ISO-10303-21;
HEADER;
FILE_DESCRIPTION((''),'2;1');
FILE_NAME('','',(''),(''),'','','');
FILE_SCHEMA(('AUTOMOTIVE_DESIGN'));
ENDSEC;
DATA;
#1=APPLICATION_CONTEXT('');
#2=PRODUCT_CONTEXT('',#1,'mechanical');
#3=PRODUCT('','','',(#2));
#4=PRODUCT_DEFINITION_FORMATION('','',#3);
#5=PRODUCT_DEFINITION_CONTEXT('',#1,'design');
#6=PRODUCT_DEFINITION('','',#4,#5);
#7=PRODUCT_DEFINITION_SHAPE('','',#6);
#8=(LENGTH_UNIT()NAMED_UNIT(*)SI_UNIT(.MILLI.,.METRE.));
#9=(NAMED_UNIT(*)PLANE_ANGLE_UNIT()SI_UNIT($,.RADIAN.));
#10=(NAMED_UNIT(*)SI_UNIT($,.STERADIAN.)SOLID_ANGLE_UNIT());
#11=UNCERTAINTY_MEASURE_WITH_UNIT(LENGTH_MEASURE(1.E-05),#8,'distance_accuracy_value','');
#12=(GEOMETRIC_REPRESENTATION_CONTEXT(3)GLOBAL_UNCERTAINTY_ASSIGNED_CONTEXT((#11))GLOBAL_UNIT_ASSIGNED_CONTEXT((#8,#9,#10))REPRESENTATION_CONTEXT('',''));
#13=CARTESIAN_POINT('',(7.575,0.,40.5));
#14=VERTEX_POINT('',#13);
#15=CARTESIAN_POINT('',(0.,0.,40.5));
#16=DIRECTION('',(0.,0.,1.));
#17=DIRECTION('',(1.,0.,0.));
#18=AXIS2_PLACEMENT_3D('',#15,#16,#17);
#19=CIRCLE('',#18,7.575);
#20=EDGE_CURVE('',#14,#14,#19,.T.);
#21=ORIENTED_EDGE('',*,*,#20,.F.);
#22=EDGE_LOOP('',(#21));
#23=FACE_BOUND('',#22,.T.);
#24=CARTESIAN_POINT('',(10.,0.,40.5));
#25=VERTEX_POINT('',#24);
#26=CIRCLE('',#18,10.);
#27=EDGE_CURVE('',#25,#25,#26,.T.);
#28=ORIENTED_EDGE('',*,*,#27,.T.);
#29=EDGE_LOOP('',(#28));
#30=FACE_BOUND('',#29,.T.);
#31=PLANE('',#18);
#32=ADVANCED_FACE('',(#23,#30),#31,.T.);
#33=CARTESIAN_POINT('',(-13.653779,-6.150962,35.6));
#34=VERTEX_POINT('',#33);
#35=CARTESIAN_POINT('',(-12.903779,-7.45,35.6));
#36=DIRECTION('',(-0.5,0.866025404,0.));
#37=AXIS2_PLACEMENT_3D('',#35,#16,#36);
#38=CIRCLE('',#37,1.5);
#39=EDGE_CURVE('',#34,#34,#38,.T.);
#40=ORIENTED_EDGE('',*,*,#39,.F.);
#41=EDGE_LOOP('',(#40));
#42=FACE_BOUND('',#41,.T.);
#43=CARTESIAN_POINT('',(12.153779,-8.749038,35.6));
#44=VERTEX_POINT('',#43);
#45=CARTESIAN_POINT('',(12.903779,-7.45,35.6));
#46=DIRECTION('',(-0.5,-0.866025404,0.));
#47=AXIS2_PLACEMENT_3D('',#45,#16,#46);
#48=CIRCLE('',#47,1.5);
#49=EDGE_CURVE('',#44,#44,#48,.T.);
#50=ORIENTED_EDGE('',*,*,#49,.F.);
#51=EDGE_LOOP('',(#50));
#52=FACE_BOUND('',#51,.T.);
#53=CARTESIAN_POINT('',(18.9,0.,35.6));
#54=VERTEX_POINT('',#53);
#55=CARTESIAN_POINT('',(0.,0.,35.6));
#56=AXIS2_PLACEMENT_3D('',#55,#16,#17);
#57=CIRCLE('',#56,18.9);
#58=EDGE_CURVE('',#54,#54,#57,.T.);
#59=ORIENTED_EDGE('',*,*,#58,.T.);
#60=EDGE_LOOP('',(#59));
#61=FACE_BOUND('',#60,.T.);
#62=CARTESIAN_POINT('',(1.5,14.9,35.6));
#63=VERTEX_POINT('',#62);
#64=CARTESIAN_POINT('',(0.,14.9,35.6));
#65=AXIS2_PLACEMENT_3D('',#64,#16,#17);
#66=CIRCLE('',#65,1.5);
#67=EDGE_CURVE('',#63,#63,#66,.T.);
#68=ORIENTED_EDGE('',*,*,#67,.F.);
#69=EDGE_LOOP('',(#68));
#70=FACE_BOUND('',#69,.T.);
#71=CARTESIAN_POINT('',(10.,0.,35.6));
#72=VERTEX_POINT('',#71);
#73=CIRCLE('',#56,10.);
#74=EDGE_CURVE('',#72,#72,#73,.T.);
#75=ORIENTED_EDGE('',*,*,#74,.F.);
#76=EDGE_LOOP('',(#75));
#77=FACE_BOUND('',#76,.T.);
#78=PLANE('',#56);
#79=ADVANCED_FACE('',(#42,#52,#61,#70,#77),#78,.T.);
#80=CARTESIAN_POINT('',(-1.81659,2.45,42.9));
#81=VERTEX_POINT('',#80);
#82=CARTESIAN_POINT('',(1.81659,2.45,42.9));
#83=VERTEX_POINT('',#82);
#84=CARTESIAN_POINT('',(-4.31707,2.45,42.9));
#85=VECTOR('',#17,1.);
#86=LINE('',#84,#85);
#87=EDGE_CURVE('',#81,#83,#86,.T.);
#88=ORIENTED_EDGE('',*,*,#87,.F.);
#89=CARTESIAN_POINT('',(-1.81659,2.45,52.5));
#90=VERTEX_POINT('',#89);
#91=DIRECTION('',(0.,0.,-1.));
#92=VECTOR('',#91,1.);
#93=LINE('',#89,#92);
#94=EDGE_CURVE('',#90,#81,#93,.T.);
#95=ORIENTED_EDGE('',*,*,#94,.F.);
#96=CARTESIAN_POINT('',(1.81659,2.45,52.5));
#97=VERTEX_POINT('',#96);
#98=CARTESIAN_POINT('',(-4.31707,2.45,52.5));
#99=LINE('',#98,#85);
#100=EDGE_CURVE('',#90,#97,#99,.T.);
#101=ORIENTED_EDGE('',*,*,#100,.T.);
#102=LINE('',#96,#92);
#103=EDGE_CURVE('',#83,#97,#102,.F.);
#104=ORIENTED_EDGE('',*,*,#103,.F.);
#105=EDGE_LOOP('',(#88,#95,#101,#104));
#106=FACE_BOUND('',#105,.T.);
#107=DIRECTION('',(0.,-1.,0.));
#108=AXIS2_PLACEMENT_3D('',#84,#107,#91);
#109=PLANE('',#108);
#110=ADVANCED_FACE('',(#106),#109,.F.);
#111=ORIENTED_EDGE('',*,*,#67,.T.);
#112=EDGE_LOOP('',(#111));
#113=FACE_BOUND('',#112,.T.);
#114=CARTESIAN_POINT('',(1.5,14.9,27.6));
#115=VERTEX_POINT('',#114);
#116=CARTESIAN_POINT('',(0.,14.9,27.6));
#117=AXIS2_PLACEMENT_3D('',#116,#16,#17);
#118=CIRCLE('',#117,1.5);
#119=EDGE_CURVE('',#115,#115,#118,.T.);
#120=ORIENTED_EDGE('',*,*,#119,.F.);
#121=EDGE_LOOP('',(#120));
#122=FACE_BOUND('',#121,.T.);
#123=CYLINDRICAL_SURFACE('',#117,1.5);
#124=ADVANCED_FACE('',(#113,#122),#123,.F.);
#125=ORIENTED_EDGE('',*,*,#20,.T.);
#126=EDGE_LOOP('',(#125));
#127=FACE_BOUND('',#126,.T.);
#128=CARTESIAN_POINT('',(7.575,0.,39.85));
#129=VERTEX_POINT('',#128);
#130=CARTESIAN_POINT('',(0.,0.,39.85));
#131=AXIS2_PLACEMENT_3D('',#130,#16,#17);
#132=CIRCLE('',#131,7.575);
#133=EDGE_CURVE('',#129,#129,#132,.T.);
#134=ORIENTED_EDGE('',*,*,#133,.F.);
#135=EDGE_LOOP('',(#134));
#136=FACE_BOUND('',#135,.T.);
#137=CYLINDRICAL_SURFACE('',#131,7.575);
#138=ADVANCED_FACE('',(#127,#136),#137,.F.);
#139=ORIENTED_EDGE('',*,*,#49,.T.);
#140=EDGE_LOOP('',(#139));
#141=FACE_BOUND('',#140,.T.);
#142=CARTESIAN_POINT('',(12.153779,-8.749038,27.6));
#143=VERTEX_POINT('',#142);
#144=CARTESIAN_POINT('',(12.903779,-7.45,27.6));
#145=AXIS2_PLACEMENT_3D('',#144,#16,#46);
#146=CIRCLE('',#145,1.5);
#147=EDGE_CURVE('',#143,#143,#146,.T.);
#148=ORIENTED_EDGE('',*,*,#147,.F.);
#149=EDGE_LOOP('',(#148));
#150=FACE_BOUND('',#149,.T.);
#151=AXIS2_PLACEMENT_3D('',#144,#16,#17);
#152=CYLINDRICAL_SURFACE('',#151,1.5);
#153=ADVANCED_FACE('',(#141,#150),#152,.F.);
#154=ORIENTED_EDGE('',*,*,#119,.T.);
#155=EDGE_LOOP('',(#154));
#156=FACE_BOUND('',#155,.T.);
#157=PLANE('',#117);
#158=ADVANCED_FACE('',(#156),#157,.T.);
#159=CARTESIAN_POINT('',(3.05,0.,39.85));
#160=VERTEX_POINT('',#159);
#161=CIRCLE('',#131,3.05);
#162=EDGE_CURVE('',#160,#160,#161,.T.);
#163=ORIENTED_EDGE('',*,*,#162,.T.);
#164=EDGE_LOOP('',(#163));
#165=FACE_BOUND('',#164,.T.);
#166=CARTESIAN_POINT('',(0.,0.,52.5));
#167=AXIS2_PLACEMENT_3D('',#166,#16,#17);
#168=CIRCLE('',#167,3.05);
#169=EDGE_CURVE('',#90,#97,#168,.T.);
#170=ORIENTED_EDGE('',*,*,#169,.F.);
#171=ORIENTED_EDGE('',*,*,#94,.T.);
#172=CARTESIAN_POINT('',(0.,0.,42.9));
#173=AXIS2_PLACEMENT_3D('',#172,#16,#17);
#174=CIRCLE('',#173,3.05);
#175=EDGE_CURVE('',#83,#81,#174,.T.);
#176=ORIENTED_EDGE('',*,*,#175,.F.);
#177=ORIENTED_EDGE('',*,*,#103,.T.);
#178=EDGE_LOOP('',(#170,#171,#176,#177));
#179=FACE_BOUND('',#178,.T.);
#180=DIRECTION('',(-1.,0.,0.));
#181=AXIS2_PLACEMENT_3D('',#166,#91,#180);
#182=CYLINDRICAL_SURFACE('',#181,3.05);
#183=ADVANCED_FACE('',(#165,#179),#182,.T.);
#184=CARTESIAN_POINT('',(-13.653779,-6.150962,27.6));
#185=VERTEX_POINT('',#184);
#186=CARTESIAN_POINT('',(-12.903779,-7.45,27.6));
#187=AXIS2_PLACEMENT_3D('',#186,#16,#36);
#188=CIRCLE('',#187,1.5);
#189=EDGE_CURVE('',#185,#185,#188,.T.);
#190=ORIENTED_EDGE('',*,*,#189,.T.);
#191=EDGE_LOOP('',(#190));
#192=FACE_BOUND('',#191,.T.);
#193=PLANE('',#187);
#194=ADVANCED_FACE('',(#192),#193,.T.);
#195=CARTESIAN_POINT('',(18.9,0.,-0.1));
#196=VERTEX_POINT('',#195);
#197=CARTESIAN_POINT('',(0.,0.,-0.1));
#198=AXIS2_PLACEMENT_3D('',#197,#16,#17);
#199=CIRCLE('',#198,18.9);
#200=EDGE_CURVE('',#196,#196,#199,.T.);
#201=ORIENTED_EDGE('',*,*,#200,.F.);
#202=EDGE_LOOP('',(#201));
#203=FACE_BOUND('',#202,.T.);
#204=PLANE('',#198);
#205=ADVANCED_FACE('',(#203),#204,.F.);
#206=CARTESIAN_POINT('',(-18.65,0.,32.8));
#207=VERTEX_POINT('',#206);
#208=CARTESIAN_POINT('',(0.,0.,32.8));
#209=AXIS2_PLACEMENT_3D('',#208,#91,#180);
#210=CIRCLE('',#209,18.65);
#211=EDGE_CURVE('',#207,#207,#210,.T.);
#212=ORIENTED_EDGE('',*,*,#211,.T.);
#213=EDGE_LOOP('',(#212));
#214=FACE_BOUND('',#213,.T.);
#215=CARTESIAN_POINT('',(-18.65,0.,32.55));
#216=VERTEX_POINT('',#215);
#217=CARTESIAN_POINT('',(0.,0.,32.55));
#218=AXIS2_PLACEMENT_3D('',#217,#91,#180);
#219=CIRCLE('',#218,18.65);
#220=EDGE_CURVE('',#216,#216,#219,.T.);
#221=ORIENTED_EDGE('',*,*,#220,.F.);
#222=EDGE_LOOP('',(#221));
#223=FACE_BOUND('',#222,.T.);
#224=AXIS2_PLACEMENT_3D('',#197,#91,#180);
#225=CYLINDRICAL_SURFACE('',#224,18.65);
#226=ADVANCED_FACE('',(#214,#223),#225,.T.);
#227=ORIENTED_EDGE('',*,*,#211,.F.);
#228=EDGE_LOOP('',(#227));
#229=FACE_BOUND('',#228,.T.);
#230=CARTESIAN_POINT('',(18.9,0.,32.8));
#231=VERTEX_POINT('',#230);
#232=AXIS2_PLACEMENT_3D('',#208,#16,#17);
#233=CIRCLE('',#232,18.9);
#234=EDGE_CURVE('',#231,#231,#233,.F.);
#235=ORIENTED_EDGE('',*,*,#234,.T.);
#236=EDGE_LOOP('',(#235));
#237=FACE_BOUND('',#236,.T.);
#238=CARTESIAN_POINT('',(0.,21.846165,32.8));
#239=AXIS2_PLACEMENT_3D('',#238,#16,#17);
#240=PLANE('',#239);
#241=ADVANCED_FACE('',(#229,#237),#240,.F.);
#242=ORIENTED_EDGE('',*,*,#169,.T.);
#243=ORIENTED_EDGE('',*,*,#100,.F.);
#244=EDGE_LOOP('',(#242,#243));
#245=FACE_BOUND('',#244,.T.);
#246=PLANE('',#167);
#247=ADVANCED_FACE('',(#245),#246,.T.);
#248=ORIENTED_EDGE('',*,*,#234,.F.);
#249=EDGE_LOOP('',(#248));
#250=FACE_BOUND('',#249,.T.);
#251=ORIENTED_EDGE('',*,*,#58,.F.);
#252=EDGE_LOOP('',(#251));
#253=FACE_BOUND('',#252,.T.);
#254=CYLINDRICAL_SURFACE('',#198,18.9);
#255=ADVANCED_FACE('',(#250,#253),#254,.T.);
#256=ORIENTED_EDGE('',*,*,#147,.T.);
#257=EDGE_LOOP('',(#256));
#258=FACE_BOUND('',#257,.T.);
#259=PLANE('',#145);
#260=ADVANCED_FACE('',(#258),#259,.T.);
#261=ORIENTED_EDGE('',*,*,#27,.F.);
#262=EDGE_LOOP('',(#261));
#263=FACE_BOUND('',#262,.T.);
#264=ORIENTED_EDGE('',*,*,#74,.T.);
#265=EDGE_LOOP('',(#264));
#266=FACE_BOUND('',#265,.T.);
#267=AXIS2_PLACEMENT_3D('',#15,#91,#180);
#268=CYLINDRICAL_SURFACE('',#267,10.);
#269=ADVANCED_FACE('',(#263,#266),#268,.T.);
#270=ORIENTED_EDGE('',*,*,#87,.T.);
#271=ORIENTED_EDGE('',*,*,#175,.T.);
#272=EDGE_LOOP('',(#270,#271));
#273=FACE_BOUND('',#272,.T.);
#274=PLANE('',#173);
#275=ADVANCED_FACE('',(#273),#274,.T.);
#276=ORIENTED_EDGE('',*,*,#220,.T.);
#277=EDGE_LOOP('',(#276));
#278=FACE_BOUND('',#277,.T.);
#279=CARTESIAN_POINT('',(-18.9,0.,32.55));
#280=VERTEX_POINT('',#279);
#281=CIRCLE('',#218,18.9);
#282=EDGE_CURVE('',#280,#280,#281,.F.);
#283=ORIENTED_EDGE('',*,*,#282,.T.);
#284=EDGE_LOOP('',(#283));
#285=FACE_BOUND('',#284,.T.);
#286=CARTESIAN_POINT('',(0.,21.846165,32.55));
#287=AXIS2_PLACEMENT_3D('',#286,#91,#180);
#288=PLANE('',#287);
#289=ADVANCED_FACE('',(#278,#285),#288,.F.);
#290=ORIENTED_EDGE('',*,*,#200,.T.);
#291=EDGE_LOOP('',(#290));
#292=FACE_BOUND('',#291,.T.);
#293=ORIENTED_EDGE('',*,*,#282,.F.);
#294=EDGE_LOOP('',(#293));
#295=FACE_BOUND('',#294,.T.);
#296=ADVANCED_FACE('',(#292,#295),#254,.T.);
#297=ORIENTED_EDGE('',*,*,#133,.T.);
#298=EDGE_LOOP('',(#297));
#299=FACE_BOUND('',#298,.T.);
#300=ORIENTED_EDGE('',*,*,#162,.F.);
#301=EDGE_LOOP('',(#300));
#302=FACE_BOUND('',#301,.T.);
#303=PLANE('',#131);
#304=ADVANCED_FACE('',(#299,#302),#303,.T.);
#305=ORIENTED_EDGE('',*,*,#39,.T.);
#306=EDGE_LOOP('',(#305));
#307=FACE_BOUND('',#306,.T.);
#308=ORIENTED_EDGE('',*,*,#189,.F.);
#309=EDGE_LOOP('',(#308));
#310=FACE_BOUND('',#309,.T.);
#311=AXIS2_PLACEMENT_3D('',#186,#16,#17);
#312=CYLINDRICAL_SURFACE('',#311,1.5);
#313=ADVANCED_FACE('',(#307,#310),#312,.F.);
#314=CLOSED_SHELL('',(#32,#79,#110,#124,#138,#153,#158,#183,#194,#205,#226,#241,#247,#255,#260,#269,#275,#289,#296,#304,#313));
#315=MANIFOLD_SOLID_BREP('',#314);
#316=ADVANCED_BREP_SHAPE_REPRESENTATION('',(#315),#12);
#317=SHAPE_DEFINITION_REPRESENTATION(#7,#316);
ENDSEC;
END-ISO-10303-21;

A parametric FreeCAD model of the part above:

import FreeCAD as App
import Part
import Sketcher
Q = App.Units.Quantity


def add_polygon(sketch, points):
    """Adds a closed chain of lines whose ends are joined by coincident constraints."""
    first, n = sketch.GeometryCount, len(points)
    for a, b in zip(points, points[1:] + points[:1]):
        sketch.addGeometry(Part.LineSegment(App.Vector(*a, 0), App.Vector(*b, 0)), False)
    for i in range(n):
        sketch.addConstraint(Sketcher.Constraint("Coincident", first + i, 2, first + (i + 1) % n, 1))

doc = App.newDocument("Part")
body = doc.addObject("PartDesign::Body", "Body")

sketch1 = doc.addObject("Sketcher::SketchObject", "Sketch")
body.addObject(sketch1)
sketch1.AttachmentSupport = (doc.XY_Plane, [""])
sketch1.MapMode = "FlatFace"
sketch1.addGeometry(Part.Circle(App.Vector(0, 0, 0), App.Vector(0, 0, 1), 19), False)
sketch1.addConstraint([
    Sketcher.Constraint("Coincident", 0, 3, -1, 1),
    Sketcher.Constraint("Diameter", 0, Q("37.8 mm")),
])
pad1 = doc.addObject("PartDesign::Pad", "Pad")
body.addObject(pad1)
pad1.Profile = sketch1
pad1.Type = "TwoLengths"
pad1.Length = 35.6
pad1.Length2 = 0.1

sketch2 = doc.addObject("Sketcher::SketchObject", "Sketch001")
body.addObject(sketch2)
sketch2.AttachmentSupport = (doc.XY_Plane, [""])
sketch2.MapMode = "FlatFace"
sketch2.AttachmentOffset = App.Placement(App.Vector(0, 0, 35.6), App.Rotation())
sketch2.addGeometry(Part.Circle(App.Vector(0, 0, 0), App.Vector(0, 0, 1), 10), False)
sketch2.addConstraint([
    Sketcher.Constraint("Coincident", 0, 3, -1, 1),
    Sketcher.Constraint("Diameter", 0, Q("20 mm")),
])
pad2 = doc.addObject("PartDesign::Pad", "Pad001")
body.addObject(pad2)
pad2.Profile = sketch2
pad2.Length = 4.9

sketch3 = doc.addObject("Sketcher::SketchObject", "Sketch002")
body.addObject(sketch3)
sketch3.AttachmentSupport = (doc.XY_Plane, [""])
sketch3.MapMode = "FlatFace"
sketch3.AttachmentOffset = App.Placement(App.Vector(0, 0, 40.5), App.Rotation())
sketch3.addGeometry(Part.Circle(App.Vector(0, 0, 0), App.Vector(0, 0, 1), 3), False)
sketch3.addConstraint([
    Sketcher.Constraint("Coincident", 0, 3, -1, 1),
    Sketcher.Constraint("Diameter", 0, Q("6.1 mm")),
])
pad3 = doc.addObject("PartDesign::Pad", "Pad002")
body.addObject(pad3)
pad3.Profile = sketch3
pad3.Length = 12

sketch4 = doc.addObject("Sketcher::SketchObject", "Sketch003")
body.addObject(sketch4)
sketch4.AttachmentSupport = (doc.XY_Plane, [""])
sketch4.MapMode = "FlatFace"
sketch4.AttachmentOffset = App.Placement(App.Vector(0, 0, 35.6), App.Rotation())
sketch4.addGeometry(Part.Circle(App.Vector(0, 14.9, 0), App.Vector(0, 0, 1), 1.5), False)
sketch4.addConstraint([
    Sketcher.Constraint("PointOnObject", 0, 3, -2),
    Sketcher.Constraint("Diameter", 0, Q("3 mm")),
    Sketcher.Constraint("DistanceY", -1, 1, 0, 3, Q("14.9 mm")),
])
pocket1 = doc.addObject("PartDesign::Pocket", "Pocket")
body.addObject(pocket1)
pocket1.Profile = sketch4
pocket1.Length = 8

sketch5 = doc.addObject("Sketcher::SketchObject", "Sketch004")
body.addObject(sketch5)
sketch5.AttachmentSupport = (doc.XY_Plane, [""])
sketch5.MapMode = "FlatFace"
sketch5.AttachmentOffset = App.Placement(App.Vector(0, 0, 40.5), App.Rotation())
sketch5.addGeometry([
    Part.Circle(App.Vector(0, 0, 0), App.Vector(0, 0, 1), 7.6),
    Part.Circle(App.Vector(0, 0, 0), App.Vector(0, 0, 1), 3),
], False)
sketch5.addConstraint([
    Sketcher.Constraint("Coincident", 0, 3, -1, 1),
    Sketcher.Constraint("Coincident", 1, 3, -1, 1),
    Sketcher.Constraint("Diameter", 1, Q("6.1 mm")),
    Sketcher.Constraint("Diameter", 0, Q("15.15 mm")),
])
pocket2 = doc.addObject("PartDesign::Pocket", "Pocket001")
body.addObject(pocket2)
pocket2.Profile = sketch5
pocket2.Length = 0.65

sketch6 = doc.addObject("Sketcher::SketchObject", "Sketch005")
body.addObject(sketch6)
sketch6.AttachmentSupport = (doc.XY_Plane, [""])
sketch6.MapMode = "FlatFace"
sketch6.AttachmentOffset = App.Placement(App.Vector(0, 0, 52.5), App.Rotation())
add_polygon(sketch6, [(-4.3, 2.5), (4.5, 2.5), (1.5, 5.5), (-3.4, 5.5)])
sketch6.addConstraint([
    Sketcher.Constraint("Horizontal", 0),
    Sketcher.Constraint("Horizontal", 2),
    Sketcher.Constraint("Angle", 1, Q("135 deg")),
    Sketcher.Constraint("DistanceY", -1, 1, 0, 2, Q("2.45 mm")),
    Sketcher.Constraint("DistanceX", 2, 2, -1, 1, Q("3.363298 mm")),
    Sketcher.Constraint("Distance", 1, Q("4.294978 mm")),
    Sketcher.Constraint("DistanceX", 0, 1, 0, 2, Q("8.834933 mm")),
    Sketcher.Constraint("DistanceX", 2, 2, 2, 1, Q("4.844154 mm")),
])
pocket3 = doc.addObject("PartDesign::Pocket", "Pocket002")
body.addObject(pocket3)
pocket3.Profile = sketch6
pocket3.Length = 9.6
doc.recompute()

polarpattern = doc.addObject("PartDesign::PolarPattern", "PolarPattern")
body.addObject(polarpattern)
polarpattern.Originals = [pocket1]
polarpattern.Axis = (doc.Z_Axis, [""])
polarpattern.Angle = 360
polarpattern.Occurrences = 3
body.Tip = polarpattern

sketch7 = doc.addObject("Sketcher::SketchObject", "Sketch006")
body.addObject(sketch7)
sketch7.AttachmentSupport = (doc.YZ_Plane, [""])
sketch7.MapMode = "FlatFace"
add_polygon(sketch7, [(21.85, 32.8), (18.65, 32.8), (18.65, 32.55), (21.85, 32.55)])
sketch7.addConstraint([
    Sketcher.Constraint("Horizontal", 0),
    Sketcher.Constraint("Vertical", 1),
    Sketcher.Constraint("Horizontal", 2),
    Sketcher.Constraint("Vertical", 3),
    Sketcher.Constraint("DistanceY", 1, 2, 1, 1, Q("0.25 mm")),
    Sketcher.Constraint("DistanceY", -1, 1, 0, 2, Q("32.8 mm")),
    Sketcher.Constraint("DistanceX", -1, 1, 0, 2, Q("18.65 mm")),
    Sketcher.Constraint("DistanceX", 0, 2, 0, 1, Q("3.196165 mm")),
])
groove = doc.addObject("PartDesign::Groove", "Groove")
body.addObject(groove)
groove.Profile = sketch7
groove.ReferenceAxis = (sketch7, ["V_Axis"])
groove.Angle = 360

doc.recompute()
